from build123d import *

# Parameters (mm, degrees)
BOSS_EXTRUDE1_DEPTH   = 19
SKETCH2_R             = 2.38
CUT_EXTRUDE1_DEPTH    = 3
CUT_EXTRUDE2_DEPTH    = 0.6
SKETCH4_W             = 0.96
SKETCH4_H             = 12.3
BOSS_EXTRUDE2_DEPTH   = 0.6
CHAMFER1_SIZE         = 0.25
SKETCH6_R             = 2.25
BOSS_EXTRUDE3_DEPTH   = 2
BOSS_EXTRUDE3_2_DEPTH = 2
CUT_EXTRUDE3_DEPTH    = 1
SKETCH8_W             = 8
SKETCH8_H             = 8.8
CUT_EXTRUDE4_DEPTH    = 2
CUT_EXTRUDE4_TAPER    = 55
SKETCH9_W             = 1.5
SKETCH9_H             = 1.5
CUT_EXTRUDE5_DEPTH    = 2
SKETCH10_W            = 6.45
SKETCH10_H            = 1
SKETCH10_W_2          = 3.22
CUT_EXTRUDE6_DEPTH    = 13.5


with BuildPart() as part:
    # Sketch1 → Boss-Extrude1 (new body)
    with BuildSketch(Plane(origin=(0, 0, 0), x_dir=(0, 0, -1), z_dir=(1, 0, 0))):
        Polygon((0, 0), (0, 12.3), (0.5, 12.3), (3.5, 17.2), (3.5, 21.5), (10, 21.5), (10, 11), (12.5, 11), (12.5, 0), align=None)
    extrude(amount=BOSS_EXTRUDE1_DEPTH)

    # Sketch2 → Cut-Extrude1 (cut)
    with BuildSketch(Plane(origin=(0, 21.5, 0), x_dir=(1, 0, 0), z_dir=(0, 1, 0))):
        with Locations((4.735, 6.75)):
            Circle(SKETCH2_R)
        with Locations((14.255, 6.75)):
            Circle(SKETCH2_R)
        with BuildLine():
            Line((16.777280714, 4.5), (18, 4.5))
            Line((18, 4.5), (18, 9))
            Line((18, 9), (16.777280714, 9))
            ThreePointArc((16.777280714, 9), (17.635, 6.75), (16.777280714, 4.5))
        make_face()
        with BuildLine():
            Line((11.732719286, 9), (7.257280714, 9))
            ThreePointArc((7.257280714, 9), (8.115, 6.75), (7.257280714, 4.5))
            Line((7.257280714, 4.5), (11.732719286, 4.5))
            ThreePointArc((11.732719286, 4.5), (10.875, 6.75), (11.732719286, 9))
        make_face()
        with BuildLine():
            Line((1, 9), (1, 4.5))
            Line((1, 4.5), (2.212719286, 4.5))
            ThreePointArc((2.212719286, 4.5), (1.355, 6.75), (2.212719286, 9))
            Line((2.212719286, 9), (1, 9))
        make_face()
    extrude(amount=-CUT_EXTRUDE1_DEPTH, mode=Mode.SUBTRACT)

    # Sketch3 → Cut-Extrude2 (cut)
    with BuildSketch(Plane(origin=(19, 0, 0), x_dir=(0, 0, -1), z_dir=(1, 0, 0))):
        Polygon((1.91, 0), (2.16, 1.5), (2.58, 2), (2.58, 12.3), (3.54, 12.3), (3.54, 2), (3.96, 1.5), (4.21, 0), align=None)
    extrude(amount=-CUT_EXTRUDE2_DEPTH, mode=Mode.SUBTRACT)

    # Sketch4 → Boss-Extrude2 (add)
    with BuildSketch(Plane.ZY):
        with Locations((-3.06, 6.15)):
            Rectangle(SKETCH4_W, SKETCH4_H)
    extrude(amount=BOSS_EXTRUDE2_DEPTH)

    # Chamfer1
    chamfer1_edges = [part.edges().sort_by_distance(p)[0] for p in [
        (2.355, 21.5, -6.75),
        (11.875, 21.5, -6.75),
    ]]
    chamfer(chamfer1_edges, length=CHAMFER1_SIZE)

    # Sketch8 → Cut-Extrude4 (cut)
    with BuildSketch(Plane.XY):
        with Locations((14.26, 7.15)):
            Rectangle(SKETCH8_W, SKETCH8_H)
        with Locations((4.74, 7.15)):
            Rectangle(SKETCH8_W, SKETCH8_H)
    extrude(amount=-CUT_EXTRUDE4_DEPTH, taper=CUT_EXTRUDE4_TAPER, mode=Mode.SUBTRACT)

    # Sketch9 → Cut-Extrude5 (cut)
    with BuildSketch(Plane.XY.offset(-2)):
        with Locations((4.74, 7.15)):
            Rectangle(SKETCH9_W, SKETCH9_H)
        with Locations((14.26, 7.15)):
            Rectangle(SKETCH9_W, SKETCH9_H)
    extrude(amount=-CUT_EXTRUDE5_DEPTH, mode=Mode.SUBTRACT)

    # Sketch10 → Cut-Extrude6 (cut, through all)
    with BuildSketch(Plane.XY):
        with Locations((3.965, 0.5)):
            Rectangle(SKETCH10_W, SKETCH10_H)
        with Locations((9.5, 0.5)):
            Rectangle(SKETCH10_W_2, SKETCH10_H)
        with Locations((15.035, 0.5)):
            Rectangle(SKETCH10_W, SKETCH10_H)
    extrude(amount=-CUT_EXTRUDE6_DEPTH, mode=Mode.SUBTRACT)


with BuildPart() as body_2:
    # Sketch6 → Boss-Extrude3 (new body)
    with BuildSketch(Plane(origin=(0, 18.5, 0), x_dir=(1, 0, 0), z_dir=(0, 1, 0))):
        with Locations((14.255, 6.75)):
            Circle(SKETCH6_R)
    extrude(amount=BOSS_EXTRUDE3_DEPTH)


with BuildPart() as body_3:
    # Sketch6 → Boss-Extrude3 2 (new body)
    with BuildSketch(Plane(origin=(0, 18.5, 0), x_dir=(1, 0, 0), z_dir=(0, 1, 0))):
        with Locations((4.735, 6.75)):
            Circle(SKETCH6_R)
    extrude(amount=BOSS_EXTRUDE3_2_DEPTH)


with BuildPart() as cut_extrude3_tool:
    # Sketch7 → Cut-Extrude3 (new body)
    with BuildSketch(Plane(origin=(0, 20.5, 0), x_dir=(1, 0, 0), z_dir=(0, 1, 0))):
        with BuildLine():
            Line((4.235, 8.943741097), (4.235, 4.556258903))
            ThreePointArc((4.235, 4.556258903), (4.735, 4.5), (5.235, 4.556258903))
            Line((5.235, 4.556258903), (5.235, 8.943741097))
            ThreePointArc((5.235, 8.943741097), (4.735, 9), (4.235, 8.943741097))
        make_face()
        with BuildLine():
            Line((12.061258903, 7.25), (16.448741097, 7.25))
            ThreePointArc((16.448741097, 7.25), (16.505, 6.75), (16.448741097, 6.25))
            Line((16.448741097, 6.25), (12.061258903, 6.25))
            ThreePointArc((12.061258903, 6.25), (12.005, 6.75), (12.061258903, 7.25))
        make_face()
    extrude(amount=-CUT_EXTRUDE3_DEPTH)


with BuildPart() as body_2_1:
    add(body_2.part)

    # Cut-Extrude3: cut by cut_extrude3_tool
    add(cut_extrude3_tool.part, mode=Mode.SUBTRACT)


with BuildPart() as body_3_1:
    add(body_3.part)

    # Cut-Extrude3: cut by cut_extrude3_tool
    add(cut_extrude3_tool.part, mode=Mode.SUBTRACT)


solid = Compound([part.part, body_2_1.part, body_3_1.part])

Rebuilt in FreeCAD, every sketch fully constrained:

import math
import FreeCAD as App
import Part
import Sketcher
from FreeCAD import Vector
Q = App.Units.Quantity


def edges_at(feature, points):
    """Names of the edges that pass closest to the given points."""
    edges = feature.Shape.Edges
    near = lambda p: min(range(len(edges)), key=lambda i: edges[i].distToShape(Part.Vertex(*p))[0])
    return sorted({f"Edge{near(p) + 1}" for p in points})


def add_polygon(sketch, points):
    """Adds a closed chain of lines whose ends are joined by coincident constraints."""
    first, n = sketch.GeometryCount, len(points)
    for a, b in zip(points, points[1:] + points[:1]):
        sketch.addGeometry(Part.LineSegment(App.Vector(*a, 0), App.Vector(*b, 0)), False)
    for i in range(n):
        sketch.addConstraint(Sketcher.Constraint("Coincident", first + i, 2, first + (i + 1) % n, 1))

doc = App.newDocument("Part")
params = doc.addObject("Spreadsheet::Sheet", "Params")
for row, (alias, value) in enumerate([
    ("sketch1_width", "11 mm"),
    ("sketch1_width2", "12.3 mm"),
    ("sketch1_width3", "10.5 mm"),
    ("sketch1_width4", "4.3 mm"),
    ("sketch1_height", "12.5 mm"),
    ("pad1_length", "19 mm"),
    ("sketch2_diameter", "4.76 mm"),
    ("sketch2_radius", "3.38 mm"),
    ("sketch2_height", "4.5 mm"),
    ("pocket1_length", "3 mm"),
    ("sketch3_width", "10.3 mm"),
    ("sketch3_height", "2.3 mm"),
    ("sketch3_height2", "0.96 mm"),
    ("pocket2_length", "0.6 mm"),
    ("sketch4_width", "12.3 mm"),
    ("sketch4_height", "0.96 mm"),
    ("pad2_length", "0.6 mm"),
    ("chamfer_size", "0.25 mm"),
    ("sketch5_width", "8 mm"),
    ("sketch5_height", "8.8 mm"),
    ("pocket3_length", "2 mm"),
    ("pocket3_taper", "-55 deg"),
    ("sketch6_width", "1.5 mm"),
    ("pocket4_length", "2 mm"),
    ("sketch7_height", "1 mm"),
    ("sketch7_width", "6.45 mm"),
    ("sketch7_width2", "3.22 mm"),
    ("sketch8_diameter", "4.5 mm"),
    ("pad3_length", "2 mm"),
    ("sketch9_diameter", "4.5 mm"),
    ("pad4_length", "2 mm"),
    ("sketch10_radius", "2.25 mm"),
    ("pad5_length", "1 mm"),
], start=1):
    params.set(f"A{row}", alias)
    params.set(f"B{row}", "=" + value)
    params.setAlias(f"B{row}", alias)

body = doc.addObject("PartDesign::Body", "Body")

# Sketch on YZ plane
sketch1 = doc.addObject("Sketcher::SketchObject", "Sketch")
body.addObject(sketch1)
sketch1.AttachmentSupport = (doc.YZ_Plane, [""])
sketch1.MapMode = "FlatFace"
add_polygon(sketch1, [(12.3, 0), (0, 0), (0, -12.5), (11, -12.5), (11, -10), (21.5, -10), (21.5, -3.5), (17.2, -3.5), (12.3, -0.5)])  # lines 0-8
sketch1.addConstraint([
    Sketcher.Constraint("Horizontal", 0),
    Sketcher.Constraint("Vertical", 1),
    Sketcher.Constraint("Horizontal", 2),
    Sketcher.Constraint("Vertical", 3),
    Sketcher.Constraint("Horizontal", 4),
    Sketcher.Constraint("Vertical", 5),
    Sketcher.Constraint("Horizontal", 6),
    Sketcher.Constraint("Vertical", 8),
    Sketcher.Constraint("Coincident", 0, 2, -1, 1),
    Sketcher.Constraint("DistanceX", 2, 1, 2, 2, Q("11 mm")),
    Sketcher.Constraint("DistanceX", 0, 2, 0, 1, Q("12.3 mm")),
    Sketcher.Constraint("DistanceX", 4, 1, 4, 2, Q("10.5 mm")),
    Sketcher.Constraint("DistanceX", 6, 2, 6, 1, Q("4.3 mm")),
    Sketcher.Constraint("DistanceY", 1, 2, 1, 1, Q("12.5 mm")),
    Sketcher.Constraint("DistanceY", 3, 1, 3, 2, Q("2.5 mm")),
    Sketcher.Constraint("DistanceY", 5, 1, 5, 2, Q("6.5 mm")),
    Sketcher.Constraint("DistanceY", 8, 1, 8, 2, Q("0.5 mm")),
])
sketch1.setExpression("Constraints[18]", "Params.sketch1_width")
sketch1.setExpression("Constraints[19]", "Params.sketch1_width2")
sketch1.setExpression("Constraints[20]", "Params.sketch1_width3")
sketch1.setExpression("Constraints[21]", "Params.sketch1_width4")
sketch1.setExpression("Constraints[22]", "Params.sketch1_height")
pad1 = doc.addObject("PartDesign::Pad", "Pad")
body.addObject(pad1)
pad1.Profile = sketch1
pad1.setExpression("Length", "Params.pad1_length")

# Sketch on XZ plane
sketch2 = doc.addObject("Sketcher::SketchObject", "Sketch001")
body.addObject(sketch2)
sketch2.AttachmentSupport = (doc.XZ_Plane, [""])
sketch2.MapMode = "FlatFace"
sketch2.AttachmentOffset = App.Placement(Vector(0, 0, -21.5), App.Rotation())
sketch2.addGeometry([
    Part.Circle(Vector(4.7, -6.8, 0), Vector(0, 0, 1), 2.4),  # 0
    Part.Circle(Vector(14.3, -6.8, 0), Vector(0, 0, 1), 2.4),  # 1
    Part.LineSegment(Vector(16.8, -4.5, 0), Vector(18, -4.5, 0)),  # 2
    Part.LineSegment(Vector(18, -4.5, 0), Vector(18, -9, 0)),  # 3
    Part.LineSegment(Vector(18, -9, 0), Vector(16.8, -9, 0)),  # 4
    Part.ArcOfCircle(Part.Circle(Vector(14.3, -6.8, 0), Vector(0, 0, 1), 3.4), math.radians(-42), math.radians(42)),  # 5
    Part.LineSegment(Vector(11.7, -9, 0), Vector(7.3, -9, 0)),  # 6
    Part.ArcOfCircle(Part.Circle(Vector(4.7, -6.8, 0), Vector(0, 0, 1), 3.4), math.radians(-42), math.radians(42)),  # 7
    Part.LineSegment(Vector(7.3, -4.5, 0), Vector(11.7, -4.5, 0)),  # 8
    Part.ArcOfCircle(Part.Circle(Vector(14.3, -6.8, 0), Vector(0, 0, 1), 3.4), math.radians(138), math.radians(222)),  # 9
    Part.LineSegment(Vector(1, -9, 0), Vector(1, -4.5, 0)),  # 10
    Part.LineSegment(Vector(1, -4.5, 0), Vector(2.2, -4.5, 0)),  # 11
    Part.ArcOfCircle(Part.Circle(Vector(4.7, -6.8, 0), Vector(0, 0, 1), 3.4), math.radians(138), math.radians(222)),  # 12
    Part.LineSegment(Vector(2.2, -9, 0), Vector(1, -9, 0)),  # 13
], False)
sketch2.addConstraint([
    Sketcher.Constraint("Coincident", 2, 2, 3, 1),
    Sketcher.Constraint("Coincident", 3, 2, 4, 1),
    Sketcher.Constraint("Coincident", 4, 2, 5, 1),
    Sketcher.Constraint("Coincident", 5, 2, 2, 1),
    Sketcher.Constraint("Coincident", 6, 2, 7, 1),
    Sketcher.Constraint("Coincident", 7, 2, 8, 1),
    Sketcher.Constraint("Coincident", 8, 2, 9, 1),
    Sketcher.Constraint("Coincident", 9, 2, 6, 1),
    Sketcher.Constraint("Coincident", 10, 2, 11, 1),
    Sketcher.Constraint("Coincident", 11, 2, 12, 1),
    Sketcher.Constraint("Coincident", 12, 2, 13, 1),
    Sketcher.Constraint("Coincident", 13, 2, 10, 1),
    Sketcher.Constraint("Horizontal", 2),
    Sketcher.Constraint("Vertical", 3),
    Sketcher.Constraint("Horizontal", 4),
    Sketcher.Constraint("Horizontal", 6),
    Sketcher.Constraint("Horizontal", 8),
    Sketcher.Constraint("Vertical", 10),
    Sketcher.Constraint("Horizontal", 11),
    Sketcher.Constraint("Horizontal", 13),
    Sketcher.Constraint("Coincident", 5, 3, 1, 3),
    Sketcher.Constraint("Coincident", 7, 3, 0, 3),
    Sketcher.Constraint("Coincident", 9, 3, 1, 3),
    Sketcher.Constraint("Coincident", 12, 3, 0, 3),
    Sketcher.Constraint("Equal", 0, 1),
    Sketcher.Constraint("Equal", 5, 7),
    Sketcher.Constraint("Equal", 7, 9),
    Sketcher.Constraint("Equal", 9, 12),
    Sketcher.Constraint("Horizontal", 0, 3, 1, 3),
    Sketcher.Constraint("Horizontal", 4, 2, 6, 2),
    Sketcher.Constraint("Horizontal", 5, 2, 7, 2),
    Sketcher.Constraint("Horizontal", 8, 2, 10, 2),
    Sketcher.Constraint("Horizontal", 9, 2, 12, 2),
    Sketcher.Constraint("Vertical", 4, 2, 5, 2),
    Sketcher.Constraint("Diameter", 0, Q("4.76 mm")),
    Sketcher.Constraint("Radius", 5, Q("3.38 mm")),
    Sketcher.Constraint("DistanceY", 3, 2, 3, 1, Q("4.5 mm")),
    Sketcher.Constraint("DistanceX", -1, 1, 2, 2, Q("18 mm")),
    Sketcher.Constraint("DistanceY", 3, 2, -1, 1, Q("9 mm")),
    Sketcher.Constraint("DistanceX", -1, 1, 10, 2, Q("1 mm")),
    Sketcher.Constraint("DistanceX", 0, 3, 1, 3, Q("9.52 mm")),
    Sketcher.Constraint("DistanceX", -1, 1, 0, 3, Q("4.735 mm")),
])
sketch2.setExpression("Constraints[34]", "Params.sketch2_diameter")
sketch2.setExpression("Constraints[35]", "Params.sketch2_radius")
sketch2.setExpression("Constraints[36]", "Params.sketch2_height")
pocket1 = doc.addObject("PartDesign::Pocket", "Pocket")
body.addObject(pocket1)
pocket1.Profile = sketch2
pocket1.setExpression("Length", "Params.pocket1_length")
pocket1.Reversed = True

# Sketch on YZ plane
sketch3 = doc.addObject("Sketcher::SketchObject", "Sketch002")
body.addObject(sketch3)
sketch3.AttachmentSupport = (doc.YZ_Plane, [""])
sketch3.MapMode = "FlatFace"
sketch3.AttachmentOffset = App.Placement(Vector(0, 0, 19), App.Rotation())
add_polygon(sketch3, [(1.5, -2.2), (0, -1.9), (0, -4.2), (1.5, -4), (2, -3.5), (12.3, -3.5), (12.3, -2.6), (2, -2.6)])  # lines 0-7
sketch3.addConstraint([
    Sketcher.Constraint("Vertical", 1),
    Sketcher.Constraint("Horizontal", 4),
    Sketcher.Constraint("Vertical", 5),
    Sketcher.Constraint("Horizontal", 6),
    Sketcher.Constraint("PointOnObject", 0, 2, -2),
    Sketcher.Constraint("Vertical", 3, 2, 6, 2),
    Sketcher.Constraint("Vertical", 2, 2, 7, 2),
    Sketcher.Constraint("Equal", 0, 2),
    Sketcher.Constraint("Equal", 3, 7),
    Sketcher.Constraint("DistanceX", 4, 1, 4, 2, Q("10.3 mm")),
    Sketcher.Constraint("DistanceY", 1, 2, 1, 1, Q("2.3 mm")),
    Sketcher.Constraint("DistanceX", -1, 1, 3, 2, Q("2 mm")),
    Sketcher.Constraint("DistanceY", 5, 1, 5, 2, Q("0.96 mm")),
    Sketcher.Constraint("DistanceX", -1, 1, 2, 2, Q("1.5 mm")),
    Sketcher.Constraint("DistanceY", 2, 2, 7, 2, Q("1.8 mm")),
    Sketcher.Constraint("DistanceY", 0, 2, -1, 1, Q("1.91 mm")),
])
sketch3.setExpression("Constraints[17]", "Params.sketch3_width")
sketch3.setExpression("Constraints[18]", "Params.sketch3_height")
sketch3.setExpression("Constraints[20]", "Params.sketch3_height2")
pocket2 = doc.addObject("PartDesign::Pocket", "Pocket001")
body.addObject(pocket2)
pocket2.Profile = sketch3
pocket2.setExpression("Length", "Params.pocket2_length")

# Sketch on YZ plane
sketch4 = doc.addObject("Sketcher::SketchObject", "Sketch003")
body.addObject(sketch4)
sketch4.AttachmentSupport = (doc.YZ_Plane, [""])
sketch4.MapMode = "FlatFace"
add_polygon(sketch4, [(12.3, -3.5), (0, -3.5), (0, -2.6), (12.3, -2.6)])  # lines 0-3
sketch4.addConstraint([
    Sketcher.Constraint("Horizontal", 0),
    Sketcher.Constraint("Vertical", 1),
    Sketcher.Constraint("Horizontal", 2),
    Sketcher.Constraint("Vertical", 3),
    Sketcher.Constraint("PointOnObject", 0, 2, -2),
    Sketcher.Constraint("DistanceX", 0, 2, 0, 1, Q("12.3 mm")),
    Sketcher.Constraint("DistanceY", 1, 1, 1, 2, Q("0.96 mm")),
    Sketcher.Constraint("DistanceY", 0, 2, -1, 1, Q("3.54 mm")),
])
sketch4.setExpression("Constraints[9]", "Params.sketch4_width")
sketch4.setExpression("Constraints[10]", "Params.sketch4_height")
pad2 = doc.addObject("PartDesign::Pad", "Pad001")
body.addObject(pad2)
pad2.Profile = sketch4
pad2.setExpression("Length", "Params.pad2_length")
pad2.Reversed = True
doc.recompute()

chamfer = doc.addObject("PartDesign::Chamfer", "Chamfer")
body.addObject(chamfer)
chamfer.Base = (pad2, edges_at(pad2, [(2.355, 21.5, -6.75), (11.875, 21.5, -6.75)]))
chamfer.setExpression("Size", "Params.chamfer_size")

# Sketch on XY plane
sketch5 = doc.addObject("Sketcher::SketchObject", "Sketch004")
body.addObject(sketch5)
sketch5.AttachmentSupport = (doc.XY_Plane, [""])
sketch5.MapMode = "FlatFace"
add_polygon(sketch5, [(10, 12), (10, 3), (18, 3), (18, 12)])  # lines 0-3
add_polygon(sketch5, [(1, 12), (1, 3), (9, 3), (9, 12)])  # lines 4-7
sketch5.addConstraint([
    Sketcher.Constraint("Vertical", 0),
    Sketcher.Constraint("Horizontal", 1),
    Sketcher.Constraint("Vertical", 2),
    Sketcher.Constraint("Horizontal", 3),
    Sketcher.Constraint("Vertical", 4),
    Sketcher.Constraint("Horizontal", 5),
    Sketcher.Constraint("Vertical", 6),
    Sketcher.Constraint("Horizontal", 7),
    Sketcher.Constraint("Horizontal", 1, 2, 4, 2),
    Sketcher.Constraint("Horizontal", 3, 2, 6, 2),
    Sketcher.Constraint("Equal", 3, 5),
    Sketcher.Constraint("DistanceX", 1, 1, 1, 2, Q("8 mm")),
    Sketcher.Constraint("DistanceY", 0, 2, 0, 1, Q("8.8 mm")),
    Sketcher.Constraint("DistanceX", -1, 1, 0, 2, Q("10.26 mm")),
    Sketcher.Constraint("DistanceY", -1, 1, 0, 2, Q("2.75 mm")),
    Sketcher.Constraint("DistanceX", -1, 1, 4, 2, Q("0.74 mm")),
])
sketch5.setExpression("Constraints[19]", "Params.sketch5_width")
sketch5.setExpression("Constraints[20]", "Params.sketch5_height")
pocket3 = doc.addObject("PartDesign::Pocket", "Pocket002")
body.addObject(pocket3)
pocket3.Profile = sketch5
pocket3.setExpression("Length", "Params.pocket3_length")
pocket3.setExpression("TaperAngle", "Params.pocket3_taper")

# Sketch on XY plane
sketch6 = doc.addObject("Sketcher::SketchObject", "Sketch005")
body.addObject(sketch6)
sketch6.AttachmentSupport = (doc.XY_Plane, [""])
sketch6.MapMode = "FlatFace"
sketch6.AttachmentOffset = App.Placement(Vector(0, 0, -2), App.Rotation())
add_polygon(sketch6, [(4, 7.9), (4, 6.4), (5.5, 6.4), (5.5, 7.9)])  # lines 0-3
add_polygon(sketch6, [(13.5, 7.9), (13.5, 6.4), (15, 6.4), (15, 7.9)])  # lines 4-7
sketch6.addConstraint([
    Sketcher.Constraint("Vertical", 0),
    Sketcher.Constraint("Horizontal", 1),
    Sketcher.Constraint("Vertical", 2),
    Sketcher.Constraint("Horizontal", 3),
    Sketcher.Constraint("Vertical", 4),
    Sketcher.Constraint("Horizontal", 5),
    Sketcher.Constraint("Vertical", 6),
    Sketcher.Constraint("Horizontal", 7),
    Sketcher.Constraint("Horizontal", 1, 2, 4, 2),
    Sketcher.Constraint("Horizontal", 3, 2, 6, 2),
    Sketcher.Constraint("Equal", 3, 5),
    Sketcher.Constraint("Equal", 7, 0),
    Sketcher.Constraint("DistanceX", 1, 1, 1, 2, Q("1.5 mm")),
    Sketcher.Constraint("DistanceY", -1, 1, 0, 2, Q("6.4 mm")),
    Sketcher.Constraint("DistanceX", -1, 1, 0, 2, Q("3.99 mm")),
    Sketcher.Constraint("DistanceX", -1, 1, 4, 2, Q("13.51 mm")),
])
sketch6.setExpression("Constraints[20]", "Params.sketch6_width")
pocket4 = doc.addObject("PartDesign::Pocket", "Pocket003")
body.addObject(pocket4)
pocket4.Profile = sketch6
pocket4.setExpression("Length", "Params.pocket4_length")

# Sketch on XY plane
sketch7 = doc.addObject("Sketcher::SketchObject", "Sketch006")
body.addObject(sketch7)
sketch7.AttachmentSupport = (doc.XY_Plane, [""])
sketch7.MapMode = "FlatFace"
add_polygon(sketch7, [(0.7, 1), (0.7, 0), (7.2, 0), (7.2, 1)])  # lines 0-3
add_polygon(sketch7, [(7.9, 1), (7.9, 0), (11.1, 0), (11.1, 1)])  # lines 4-7
add_polygon(sketch7, [(11.8, 1), (11.8, 0), (18.3, 0), (18.3, 1)])  # lines 8-11
sketch7.addConstraint([
    Sketcher.Constraint("Vertical", 0),
    Sketcher.Constraint("Horizontal", 1),
    Sketcher.Constraint("Vertical", 2),
    Sketcher.Constraint("Horizontal", 3),
    Sketcher.Constraint("Vertical", 4),
    Sketcher.Constraint("Horizontal", 5),
    Sketcher.Constraint("Vertical", 6),
    Sketcher.Constraint("Horizontal", 7),
    Sketcher.Constraint("Vertical", 8),
    Sketcher.Constraint("Horizontal", 9),
    Sketcher.Constraint("Vertical", 10),
    Sketcher.Constraint("Horizontal", 11),
    Sketcher.Constraint("PointOnObject", 0, 2, -1),
    Sketcher.Constraint("PointOnObject", 4, 2, -1),
    Sketcher.Constraint("PointOnObject", 8, 2, -1),
    Sketcher.Constraint("Horizontal", 3, 2, 6, 2),
    Sketcher.Constraint("Horizontal", 7, 2, 10, 2),
    Sketcher.Constraint("Equal", 3, 9),
    Sketcher.Constraint("DistanceY", 0, 2, 0, 1, Q("1 mm")),
    Sketcher.Constraint("DistanceX", 1, 1, 1, 2, Q("6.45 mm")),
    Sketcher.Constraint("DistanceX", 5, 1, 5, 2, Q("3.22 mm")),
    Sketcher.Constraint("DistanceX", 1, 2, 4, 2, Q("0.7 mm")),
    Sketcher.Constraint("DistanceX", 5, 2, 8, 2, Q("0.7 mm")),
    Sketcher.Constraint("DistanceX", -1, 1, 0, 2, Q("0.74 mm")),
])
sketch7.setExpression("Constraints[30]", "Params.sketch7_height")
sketch7.setExpression("Constraints[31]", "Params.sketch7_width")
sketch7.setExpression("Constraints[32]", "Params.sketch7_width2")
pocket5 = doc.addObject("PartDesign::Pocket", "Pocket004")
body.addObject(pocket5)
pocket5.Profile = sketch7
pocket5.Type = "ThroughAll"
body2 = doc.addObject("PartDesign::Body", "Body001")

# Sketch on XZ plane
sketch8 = doc.addObject("Sketcher::SketchObject", "Sketch007")
body2.addObject(sketch8)
sketch8.AttachmentSupport = (doc.getObject("XZ_Plane001"), [""])
sketch8.MapMode = "FlatFace"
sketch8.AttachmentOffset = App.Placement(Vector(0, 0, -18.5), App.Rotation())
sketch8.addGeometry(Part.Circle(Vector(14.3, -6.8, 0), Vector(0, 0, 1), 2.2), False)
sketch8.addConstraint([
    Sketcher.Constraint("Diameter", 0, Q("4.5 mm")),
    Sketcher.Constraint("DistanceY", 0, 3, -1, 1, Q("6.75 mm")),
    Sketcher.Constraint("DistanceX", -1, 1, 0, 3, Q("14.255 mm")),
])
sketch8.setExpression("Constraints[0]", "Params.sketch8_diameter")
pad3 = doc.addObject("PartDesign::Pad", "Pad002")
body2.addObject(pad3)
pad3.Profile = sketch8
pad3.setExpression("Length", "Params.pad3_length")
pad3.Reversed = True
body3 = doc.addObject("PartDesign::Body", "Body002")

# Sketch on XZ plane
sketch9 = doc.addObject("Sketcher::SketchObject", "Sketch008")
body3.addObject(sketch9)
sketch9.AttachmentSupport = (doc.getObject("XZ_Plane002"), [""])
sketch9.MapMode = "FlatFace"
sketch9.AttachmentOffset = App.Placement(Vector(0, 0, -18.5), App.Rotation())
sketch9.addGeometry(Part.Circle(Vector(4.7, -6.8, 0), Vector(0, 0, 1), 2.2), False)
sketch9.addConstraint([
    Sketcher.Constraint("Diameter", 0, Q("4.5 mm")),
    Sketcher.Constraint("DistanceY", 0, 3, -1, 1, Q("6.75 mm")),
    Sketcher.Constraint("DistanceX", -1, 1, 0, 3, Q("4.735 mm")),
])
sketch9.setExpression("Constraints[0]", "Params.sketch9_diameter")
pad4 = doc.addObject("PartDesign::Pad", "Pad003")
body3.addObject(pad4)
pad4.Profile = sketch9
pad4.setExpression("Length", "Params.pad4_length")
pad4.Reversed = True
body4 = doc.addObject("PartDesign::Body", "Body003")
body4.AllowCompound = True

# Sketch on XZ plane
sketch10 = doc.addObject("Sketcher::SketchObject", "Sketch009")
body4.addObject(sketch10)
sketch10.AttachmentSupport = (doc.getObject("XZ_Plane003"), [""])
sketch10.MapMode = "FlatFace"
sketch10.AttachmentOffset = App.Placement(Vector(0, 0, -20.5), App.Rotation())
sketch10.addGeometry([
    Part.LineSegment(Vector(4.2, -8.9, 0), Vector(4.2, -4.6, 0)),  # 0
    Part.ArcOfCircle(Part.Circle(Vector(4.7, -6.8, 0), Vector(0, 0, 1), 2.3), math.radians(77), math.radians(103)),  # 1
    Part.LineSegment(Vector(5.2, -4.6, 0), Vector(5.2, -8.9, 0)),  # 2
    Part.ArcOfCircle(Part.Circle(Vector(4.7, -6.7, 0), Vector(0, 0, 1), 2.3), math.radians(-103), math.radians(-77)),  # 3
    Part.LineSegment(Vector(16.4, -7.2, 0), Vector(12.1, -7.2, 0)),  # 4
    Part.ArcOfCircle(Part.Circle(Vector(14.3, -6.8, 0), Vector(0, 0, 1), 2.3), math.radians(167), math.radians(193)),  # 5
    Part.LineSegment(Vector(12.1, -6.2, 0), Vector(16.4, -6.2, 0)),  # 6
    Part.ArcOfCircle(Part.Circle(Vector(14.3, -6.8, 0), Vector(0, 0, 1), 2.3), math.radians(-13), math.radians(13)),  # 7
], False)
sketch10.addConstraint([
    Sketcher.Constraint("Coincident", 0, 2, 1, 2),
    Sketcher.Constraint("Coincident", 1, 1, 2, 1),
    Sketcher.Constraint("Coincident", 2, 2, 3, 2),
    Sketcher.Constraint("Coincident", 3, 1, 0, 1),
    Sketcher.Constraint("Coincident", 4, 2, 5, 2),
    Sketcher.Constraint("Coincident", 5, 1, 6, 1),
    Sketcher.Constraint("Coincident", 6, 2, 7, 2),
    Sketcher.Constraint("Coincident", 7, 1, 4, 1),
    Sketcher.Constraint("Vertical", 0),
    Sketcher.Constraint("Vertical", 2),
    Sketcher.Constraint("Horizontal", 4),
    Sketcher.Constraint("Horizontal", 6),
    Sketcher.Constraint("Coincident", 3, 3, 1, 3),
    Sketcher.Constraint("Coincident", 7, 3, 5, 3),
    Sketcher.Constraint("Equal", 1, 3),
    Sketcher.Constraint("Equal", 3, 5),
    Sketcher.Constraint("Equal", 5, 7),
    Sketcher.Constraint("Horizontal", 3, 3, 5, 3),
    Sketcher.Constraint("Horizontal", 0, 2, 1, 1),
    Sketcher.Constraint("Vertical", 4, 2, 5, 1),
    Sketcher.Constraint("Equal", 6, 0),
    Sketcher.Constraint("Radius", 1, Q("2.25 mm")),
    Sketcher.Constraint("DistanceX", 0, 2, 1, 1, Q("1 mm")),
    Sketcher.Constraint("DistanceY", 1, 3, -1, 1, Q("6.75 mm")),
    Sketcher.Constraint("DistanceX", 1, 3, 5, 3, Q("9.52 mm")),
    Sketcher.Constraint("DistanceX", -1, 1, 1, 3, Q("4.735 mm")),
])
sketch10.setExpression("Constraints[21]", "Params.sketch10_radius")
pad5 = doc.addObject("PartDesign::Pad", "Pad004")
body4.addObject(pad5)
pad5.Profile = sketch10
pad5.setExpression("Length", "Params.pad5_length")
doc.recompute()

body5 = doc.addObject("PartDesign::Body", "Body004")
body5.BaseFeature = body4
boolean = doc.addObject("PartDesign::Boolean", "Boolean")
body2.addObject(boolean)
boolean.Type = "Cut"
boolean.addObjects([body5])
doc.recompute()

boolean2 = doc.addObject("PartDesign::Boolean", "Boolean001")
body3.addObject(boolean2)
boolean2.Type = "Cut"
boolean2.addObjects([body4])

doc.recompute()
